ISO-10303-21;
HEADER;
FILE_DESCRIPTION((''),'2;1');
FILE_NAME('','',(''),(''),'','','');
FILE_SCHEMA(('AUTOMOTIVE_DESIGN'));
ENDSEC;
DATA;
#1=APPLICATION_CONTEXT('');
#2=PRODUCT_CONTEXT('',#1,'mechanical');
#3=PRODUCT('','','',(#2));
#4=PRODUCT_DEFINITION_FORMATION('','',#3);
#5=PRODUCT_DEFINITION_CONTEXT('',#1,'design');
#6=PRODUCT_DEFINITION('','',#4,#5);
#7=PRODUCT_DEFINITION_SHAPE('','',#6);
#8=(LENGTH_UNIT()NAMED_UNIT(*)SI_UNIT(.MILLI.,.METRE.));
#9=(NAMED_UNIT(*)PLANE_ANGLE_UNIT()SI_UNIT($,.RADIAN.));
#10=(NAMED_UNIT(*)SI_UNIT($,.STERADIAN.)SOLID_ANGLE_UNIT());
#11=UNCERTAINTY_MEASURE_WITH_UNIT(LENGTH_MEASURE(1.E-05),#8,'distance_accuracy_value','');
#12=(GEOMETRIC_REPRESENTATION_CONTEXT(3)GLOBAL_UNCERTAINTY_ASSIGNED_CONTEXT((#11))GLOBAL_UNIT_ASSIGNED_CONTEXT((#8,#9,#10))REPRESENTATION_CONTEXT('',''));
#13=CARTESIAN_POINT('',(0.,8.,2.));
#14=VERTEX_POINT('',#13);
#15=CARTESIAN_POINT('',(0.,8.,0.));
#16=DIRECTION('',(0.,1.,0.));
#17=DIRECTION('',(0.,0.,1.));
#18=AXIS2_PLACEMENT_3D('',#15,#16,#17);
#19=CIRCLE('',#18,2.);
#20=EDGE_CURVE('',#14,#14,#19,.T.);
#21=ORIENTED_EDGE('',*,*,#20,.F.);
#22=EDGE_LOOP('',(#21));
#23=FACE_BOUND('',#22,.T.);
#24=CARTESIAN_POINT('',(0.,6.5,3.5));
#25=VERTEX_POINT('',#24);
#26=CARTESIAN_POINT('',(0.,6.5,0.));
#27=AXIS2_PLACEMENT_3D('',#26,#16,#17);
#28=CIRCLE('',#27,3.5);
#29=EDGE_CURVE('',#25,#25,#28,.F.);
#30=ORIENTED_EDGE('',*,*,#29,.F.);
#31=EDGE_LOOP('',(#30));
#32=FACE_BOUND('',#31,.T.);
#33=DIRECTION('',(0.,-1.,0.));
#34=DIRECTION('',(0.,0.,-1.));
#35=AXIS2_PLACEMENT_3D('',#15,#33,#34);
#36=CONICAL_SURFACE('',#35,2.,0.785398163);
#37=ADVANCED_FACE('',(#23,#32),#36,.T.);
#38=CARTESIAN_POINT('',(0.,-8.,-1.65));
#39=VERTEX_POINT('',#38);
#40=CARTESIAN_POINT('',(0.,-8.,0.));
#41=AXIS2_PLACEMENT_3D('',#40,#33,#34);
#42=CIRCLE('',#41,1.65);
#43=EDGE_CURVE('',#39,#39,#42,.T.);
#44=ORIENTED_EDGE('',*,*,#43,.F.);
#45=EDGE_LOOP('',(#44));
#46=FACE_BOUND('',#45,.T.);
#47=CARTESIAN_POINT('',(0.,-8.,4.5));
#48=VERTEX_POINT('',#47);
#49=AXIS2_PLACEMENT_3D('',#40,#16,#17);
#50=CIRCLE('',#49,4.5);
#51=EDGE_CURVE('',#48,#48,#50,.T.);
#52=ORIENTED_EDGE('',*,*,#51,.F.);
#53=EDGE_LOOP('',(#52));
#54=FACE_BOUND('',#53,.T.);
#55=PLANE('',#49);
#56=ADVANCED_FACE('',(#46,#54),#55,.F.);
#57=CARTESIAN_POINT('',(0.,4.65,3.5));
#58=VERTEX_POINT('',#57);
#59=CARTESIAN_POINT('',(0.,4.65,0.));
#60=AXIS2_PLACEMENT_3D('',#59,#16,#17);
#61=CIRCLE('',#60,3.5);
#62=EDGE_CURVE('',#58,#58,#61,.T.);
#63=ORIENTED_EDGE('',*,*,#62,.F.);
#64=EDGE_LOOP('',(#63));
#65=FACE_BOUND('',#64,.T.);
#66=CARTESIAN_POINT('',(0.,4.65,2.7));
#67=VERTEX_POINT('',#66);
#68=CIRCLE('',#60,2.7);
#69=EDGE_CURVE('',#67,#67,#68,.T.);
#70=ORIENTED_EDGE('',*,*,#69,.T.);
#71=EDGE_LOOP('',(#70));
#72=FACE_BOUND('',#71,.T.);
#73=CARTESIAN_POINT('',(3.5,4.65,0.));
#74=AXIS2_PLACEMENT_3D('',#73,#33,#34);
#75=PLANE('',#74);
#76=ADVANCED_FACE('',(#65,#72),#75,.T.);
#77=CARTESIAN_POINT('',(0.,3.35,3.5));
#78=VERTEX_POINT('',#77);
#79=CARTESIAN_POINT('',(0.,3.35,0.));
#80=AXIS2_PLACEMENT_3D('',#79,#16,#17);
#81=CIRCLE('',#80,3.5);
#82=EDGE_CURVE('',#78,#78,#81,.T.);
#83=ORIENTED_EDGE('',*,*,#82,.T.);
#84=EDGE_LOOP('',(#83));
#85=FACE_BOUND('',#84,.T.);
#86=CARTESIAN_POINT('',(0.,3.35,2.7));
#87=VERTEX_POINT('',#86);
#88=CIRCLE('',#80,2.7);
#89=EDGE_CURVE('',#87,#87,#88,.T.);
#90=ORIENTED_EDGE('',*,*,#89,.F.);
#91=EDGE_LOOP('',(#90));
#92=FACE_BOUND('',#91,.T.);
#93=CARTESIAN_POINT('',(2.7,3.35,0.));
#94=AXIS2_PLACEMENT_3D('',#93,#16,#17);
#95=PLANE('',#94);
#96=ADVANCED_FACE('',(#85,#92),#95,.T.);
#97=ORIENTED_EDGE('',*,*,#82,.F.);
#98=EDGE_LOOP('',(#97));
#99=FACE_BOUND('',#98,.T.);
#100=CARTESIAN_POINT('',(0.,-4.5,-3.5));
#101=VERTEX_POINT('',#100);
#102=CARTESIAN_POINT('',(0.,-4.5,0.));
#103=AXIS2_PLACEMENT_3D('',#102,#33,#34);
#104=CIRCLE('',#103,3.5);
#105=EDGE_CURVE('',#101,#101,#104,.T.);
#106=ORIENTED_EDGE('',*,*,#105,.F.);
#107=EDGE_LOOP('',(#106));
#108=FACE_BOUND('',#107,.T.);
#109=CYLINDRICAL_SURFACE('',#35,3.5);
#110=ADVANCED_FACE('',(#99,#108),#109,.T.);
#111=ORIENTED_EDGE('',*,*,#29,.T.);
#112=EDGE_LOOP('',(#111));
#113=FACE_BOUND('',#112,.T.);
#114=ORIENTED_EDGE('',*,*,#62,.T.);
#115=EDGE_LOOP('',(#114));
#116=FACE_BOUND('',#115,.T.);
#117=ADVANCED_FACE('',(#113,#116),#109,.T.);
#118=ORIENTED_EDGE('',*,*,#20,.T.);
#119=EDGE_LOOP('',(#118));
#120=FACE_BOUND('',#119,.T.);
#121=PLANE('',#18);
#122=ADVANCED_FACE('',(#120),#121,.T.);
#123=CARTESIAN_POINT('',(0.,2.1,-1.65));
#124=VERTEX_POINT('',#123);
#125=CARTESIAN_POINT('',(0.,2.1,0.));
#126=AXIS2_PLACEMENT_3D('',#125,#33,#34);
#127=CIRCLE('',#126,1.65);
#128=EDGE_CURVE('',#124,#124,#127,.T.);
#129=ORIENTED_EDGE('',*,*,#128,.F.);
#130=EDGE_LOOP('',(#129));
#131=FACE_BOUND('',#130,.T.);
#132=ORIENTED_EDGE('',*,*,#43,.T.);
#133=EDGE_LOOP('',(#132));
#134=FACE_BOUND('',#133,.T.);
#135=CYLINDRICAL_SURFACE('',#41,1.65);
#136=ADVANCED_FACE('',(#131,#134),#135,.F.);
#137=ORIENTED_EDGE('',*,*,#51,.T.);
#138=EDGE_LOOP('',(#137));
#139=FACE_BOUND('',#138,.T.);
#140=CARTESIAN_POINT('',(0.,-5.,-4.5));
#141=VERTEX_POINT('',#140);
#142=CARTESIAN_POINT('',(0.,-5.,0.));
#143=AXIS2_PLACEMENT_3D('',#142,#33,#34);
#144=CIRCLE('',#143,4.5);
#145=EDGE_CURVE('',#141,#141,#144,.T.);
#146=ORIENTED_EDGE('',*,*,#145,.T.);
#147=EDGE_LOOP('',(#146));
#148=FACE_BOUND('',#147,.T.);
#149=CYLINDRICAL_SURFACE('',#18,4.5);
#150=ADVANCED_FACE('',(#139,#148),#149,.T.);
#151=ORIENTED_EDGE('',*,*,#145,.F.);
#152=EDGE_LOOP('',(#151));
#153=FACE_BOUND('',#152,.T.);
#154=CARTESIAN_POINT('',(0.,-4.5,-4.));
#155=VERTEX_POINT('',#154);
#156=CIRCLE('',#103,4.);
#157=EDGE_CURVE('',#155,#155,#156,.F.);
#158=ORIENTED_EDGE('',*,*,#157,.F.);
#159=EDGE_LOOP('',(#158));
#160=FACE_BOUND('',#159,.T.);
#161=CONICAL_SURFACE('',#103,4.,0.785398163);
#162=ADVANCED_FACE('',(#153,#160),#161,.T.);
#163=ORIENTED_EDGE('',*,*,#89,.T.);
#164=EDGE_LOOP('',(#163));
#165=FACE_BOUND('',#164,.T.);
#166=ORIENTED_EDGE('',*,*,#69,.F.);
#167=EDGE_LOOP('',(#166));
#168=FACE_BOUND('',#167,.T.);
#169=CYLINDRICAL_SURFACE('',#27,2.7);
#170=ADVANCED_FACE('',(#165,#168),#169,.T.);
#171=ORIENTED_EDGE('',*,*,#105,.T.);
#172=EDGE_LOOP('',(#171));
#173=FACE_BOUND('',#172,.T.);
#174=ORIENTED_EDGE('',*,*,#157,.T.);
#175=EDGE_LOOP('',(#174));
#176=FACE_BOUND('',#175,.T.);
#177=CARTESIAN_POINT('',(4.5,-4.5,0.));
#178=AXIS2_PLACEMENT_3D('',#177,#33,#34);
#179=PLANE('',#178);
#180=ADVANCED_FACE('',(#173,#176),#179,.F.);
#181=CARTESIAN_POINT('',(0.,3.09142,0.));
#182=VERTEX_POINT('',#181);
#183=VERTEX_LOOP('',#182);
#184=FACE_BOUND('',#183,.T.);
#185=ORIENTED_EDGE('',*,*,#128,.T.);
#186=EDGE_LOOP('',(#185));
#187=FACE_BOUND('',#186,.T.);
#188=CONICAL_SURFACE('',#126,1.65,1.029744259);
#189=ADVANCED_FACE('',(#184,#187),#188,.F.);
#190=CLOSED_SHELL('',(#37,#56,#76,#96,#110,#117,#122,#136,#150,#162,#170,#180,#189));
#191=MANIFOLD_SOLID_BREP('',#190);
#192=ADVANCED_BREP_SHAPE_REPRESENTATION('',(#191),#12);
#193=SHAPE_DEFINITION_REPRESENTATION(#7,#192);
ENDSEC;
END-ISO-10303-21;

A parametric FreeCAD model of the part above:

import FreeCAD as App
import Part
import Sketcher
from FreeCAD import Vector


def edges_at(feature, points):
    """Names of the edges that pass closest to the given points."""
    edges = feature.Shape.Edges
    near = lambda p: min(range(len(edges)), key=lambda i: edges[i].distToShape(Part.Vertex(*p))[0])
    return sorted({f"Edge{near(p) + 1}" for p in points})

doc = App.newDocument("Part")
body = doc.addObject("PartDesign::Body", "Body")

sketch1 = body.newObject("Sketcher::SketchObject", "Sketch")
sketch1.AttachmentSupport = (doc.getObject("XZ_Plane"), [""])
sketch1.MapMode = "FlatFace"
sketch1.addGeometry(Part.Circle(Vector(0, 0, 0), Vector(0, 0, 1), 3.5), False)
sketch1.addConstraint([
    Sketcher.Constraint("Coincident", 0, 3, -1, 1),
    Sketcher.Constraint("Diameter", 0, 7.0),
])
pad1 = body.newObject("PartDesign::Pad", "Pad")
pad1.Profile = sketch1
pad1.Length = 16
pad1.Midplane = True

sketch2 = body.newObject("Sketcher::SketchObject", "Sketch001")
sketch2.AttachmentSupport = (doc.getObject("XY_Plane"), [""])
sketch2.MapMode = "FlatFace"
sketch2.addGeometry([
    Part.LineSegment(Vector(3.5, -4.5, 0), Vector(3.5, -8, 0)),
    Part.LineSegment(Vector(3.5, -8, 0), Vector(4.5, -8, 0)),
    Part.LineSegment(Vector(4.5, -8, 0), Vector(4.5, -4.5, 0)),
    Part.LineSegment(Vector(4.5, -4.5, 0), Vector(3.5, -4.5, 0)),
], False)
sketch2.addConstraint([
    Sketcher.Constraint("Coincident", 0, 2, 1, 1),
    Sketcher.Constraint("Coincident", 1, 2, 2, 1),
    Sketcher.Constraint("Coincident", 2, 2, 3, 1),
    Sketcher.Constraint("Coincident", 3, 2, 0, 1),
    Sketcher.Constraint("Vertical", 0),
    Sketcher.Constraint("Horizontal", 1),
    Sketcher.Constraint("Vertical", 2),
    Sketcher.Constraint("Horizontal", 3),
    Sketcher.Constraint("DistanceX", 1, 1, 1, 2, 1.0),
    Sketcher.Constraint("DistanceY", 0, 2, 0, 1, 3.5),
    Sketcher.Constraint("DistanceY", 0, 2, -1, 1, 8.0),
    Sketcher.Constraint("DistanceX", -1, 1, 0, 2, 3.5),
])
revolution = body.newObject("PartDesign::Revolution", "Revolution")
revolution.Profile = sketch2
revolution.ReferenceAxis = (sketch2, ["V_Axis"])
revolution.Angle = 360

sketch3 = body.newObject("Sketcher::SketchObject", "Sketch002")
sketch3.AttachmentSupport = (doc.getObject("XZ_Plane"), [""])
sketch3.MapMode = "FlatFace"
sketch3.AttachmentOffset = App.Placement(Vector(0, 0, 8), App.Rotation())
sketch3.addGeometry(Part.Circle(Vector(0, 0, 0), Vector(0, 0, 1), 1.65), False)
sketch3.addConstraint([
    Sketcher.Constraint("Coincident", 0, 3, -1, 1),
    Sketcher.Constraint("Diameter", 0, 3.3),
])
doc.recompute()
hole = body.newObject("PartDesign::Hole", "Hole")
hole.Profile = sketch3
hole.ThreadType = "None"
hole.Diameter = 3.3
hole.DepthType = "Dimension"
hole.Depth = 10.1
hole.DrillPoint = "Angled"
hole.DrillPointAngle = 118
doc.recompute()

chamfer = body.newObject("PartDesign::Chamfer", "Chamfer")
chamfer.Base = (hole, edges_at(hole, [(0, 8, -3.5)]))
chamfer.Size = 1.5

sketch4 = body.newObject("Sketcher::SketchObject", "Sketch003")
sketch4.AttachmentSupport = (doc.getObject("XY_Plane"), [""])
sketch4.MapMode = "FlatFace"
sketch4.addGeometry([
    Part.LineSegment(Vector(2.7, 4.65, 0), Vector(2.7, 3.35, 0)),
    Part.LineSegment(Vector(2.7, 3.35, 0), Vector(3.5, 3.35, 0)),
    Part.LineSegment(Vector(3.5, 3.35, 0), Vector(3.5, 4.65, 0)),
    Part.LineSegment(Vector(3.5, 4.65, 0), Vector(2.7, 4.65, 0)),
], False)
sketch4.addConstraint([
    Sketcher.Constraint("Coincident", 0, 2, 1, 1),
    Sketcher.Constraint("Coincident", 1, 2, 2, 1),
    Sketcher.Constraint("Coincident", 2, 2, 3, 1),
    Sketcher.Constraint("Coincident", 3, 2, 0, 1),
    Sketcher.Constraint("Vertical", 0),
    Sketcher.Constraint("Horizontal", 1),
    Sketcher.Constraint("Vertical", 2),
    Sketcher.Constraint("Horizontal", 3),
    Sketcher.Constraint("DistanceX", 1, 1, 1, 2, 0.8),
    Sketcher.Constraint("DistanceY", 0, 2, 0, 1, 1.3),
    Sketcher.Constraint("DistanceX", -1, 1, 0, 2, 2.7),
    Sketcher.Constraint("DistanceY", -1, 1, 0, 2, 3.35),
])
groove = body.newObject("PartDesign::Groove", "Groove")
groove.Profile = sketch4
groove.ReferenceAxis = (sketch4, ["V_Axis"])
groove.Angle = 360
doc.recompute()

chamfer2 = body.newObject("PartDesign::Chamfer", "Chamfer001")
chamfer2.Base = (groove, edges_at(groove, [(0, -4.5, 4.5)]))
chamfer2.Size = 0.5

doc.recompute()
